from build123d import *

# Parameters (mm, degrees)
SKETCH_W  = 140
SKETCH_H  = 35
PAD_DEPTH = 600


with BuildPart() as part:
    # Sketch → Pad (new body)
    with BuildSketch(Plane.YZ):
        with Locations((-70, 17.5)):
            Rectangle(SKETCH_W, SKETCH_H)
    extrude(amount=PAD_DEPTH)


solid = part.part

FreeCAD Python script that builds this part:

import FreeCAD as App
import Part
import Sketcher

V = App.Vector
Q = App.Units.Quantity


def add_polygon(sketch, points):
    """Adds a closed chain of lines whose ends are joined by coincident constraints."""
    first, n = sketch.GeometryCount, len(points)
    for a, b in zip(points, points[1:] + points[:1]):
        sketch.addGeometry(Part.LineSegment(App.Vector(*a, 0), App.Vector(*b, 0)), False)
    for i in range(n):
        sketch.addConstraint(Sketcher.Constraint("Coincident", first + i, 2, first + (i + 1) % n, 1))

doc = App.newDocument("Part")
body = doc.addObject("PartDesign::Body", "Body")

# Sketch on YZ plane
sketch1 = doc.addObject("Sketcher::SketchObject", "Sketch")
body.addObject(sketch1)
sketch1.AttachmentSupport = (doc.YZ_Plane, [""])
sketch1.MapMode = "FlatFace"
add_polygon(sketch1, [(-140, 35), (-140, 0), (0, 0), (0, 35)])  # lines 0-3
sketch1.addConstraint(Sketcher.Constraint("Vertical", 0))
sketch1.addConstraint(Sketcher.Constraint("Horizontal", 1))
sketch1.addConstraint(Sketcher.Constraint("Vertical", 2))
sketch1.addConstraint(Sketcher.Constraint("Horizontal", 3))
sketch1.addConstraint(Sketcher.Constraint("Coincident", 1, 2, -1, 1))
sketch1.addConstraint(Sketcher.Constraint("DistanceX", 1, 1, 1, 2, Q("140 mm")))
sketch1.addConstraint(Sketcher.Constraint("DistanceY", 0, 2, 0, 1, Q("35 mm")))
pad1 = doc.addObject("PartDesign::Pad", "Pad")
body.addObject(pad1)
pad1.Profile = sketch1
pad1.Length = 600

doc.recompute()
